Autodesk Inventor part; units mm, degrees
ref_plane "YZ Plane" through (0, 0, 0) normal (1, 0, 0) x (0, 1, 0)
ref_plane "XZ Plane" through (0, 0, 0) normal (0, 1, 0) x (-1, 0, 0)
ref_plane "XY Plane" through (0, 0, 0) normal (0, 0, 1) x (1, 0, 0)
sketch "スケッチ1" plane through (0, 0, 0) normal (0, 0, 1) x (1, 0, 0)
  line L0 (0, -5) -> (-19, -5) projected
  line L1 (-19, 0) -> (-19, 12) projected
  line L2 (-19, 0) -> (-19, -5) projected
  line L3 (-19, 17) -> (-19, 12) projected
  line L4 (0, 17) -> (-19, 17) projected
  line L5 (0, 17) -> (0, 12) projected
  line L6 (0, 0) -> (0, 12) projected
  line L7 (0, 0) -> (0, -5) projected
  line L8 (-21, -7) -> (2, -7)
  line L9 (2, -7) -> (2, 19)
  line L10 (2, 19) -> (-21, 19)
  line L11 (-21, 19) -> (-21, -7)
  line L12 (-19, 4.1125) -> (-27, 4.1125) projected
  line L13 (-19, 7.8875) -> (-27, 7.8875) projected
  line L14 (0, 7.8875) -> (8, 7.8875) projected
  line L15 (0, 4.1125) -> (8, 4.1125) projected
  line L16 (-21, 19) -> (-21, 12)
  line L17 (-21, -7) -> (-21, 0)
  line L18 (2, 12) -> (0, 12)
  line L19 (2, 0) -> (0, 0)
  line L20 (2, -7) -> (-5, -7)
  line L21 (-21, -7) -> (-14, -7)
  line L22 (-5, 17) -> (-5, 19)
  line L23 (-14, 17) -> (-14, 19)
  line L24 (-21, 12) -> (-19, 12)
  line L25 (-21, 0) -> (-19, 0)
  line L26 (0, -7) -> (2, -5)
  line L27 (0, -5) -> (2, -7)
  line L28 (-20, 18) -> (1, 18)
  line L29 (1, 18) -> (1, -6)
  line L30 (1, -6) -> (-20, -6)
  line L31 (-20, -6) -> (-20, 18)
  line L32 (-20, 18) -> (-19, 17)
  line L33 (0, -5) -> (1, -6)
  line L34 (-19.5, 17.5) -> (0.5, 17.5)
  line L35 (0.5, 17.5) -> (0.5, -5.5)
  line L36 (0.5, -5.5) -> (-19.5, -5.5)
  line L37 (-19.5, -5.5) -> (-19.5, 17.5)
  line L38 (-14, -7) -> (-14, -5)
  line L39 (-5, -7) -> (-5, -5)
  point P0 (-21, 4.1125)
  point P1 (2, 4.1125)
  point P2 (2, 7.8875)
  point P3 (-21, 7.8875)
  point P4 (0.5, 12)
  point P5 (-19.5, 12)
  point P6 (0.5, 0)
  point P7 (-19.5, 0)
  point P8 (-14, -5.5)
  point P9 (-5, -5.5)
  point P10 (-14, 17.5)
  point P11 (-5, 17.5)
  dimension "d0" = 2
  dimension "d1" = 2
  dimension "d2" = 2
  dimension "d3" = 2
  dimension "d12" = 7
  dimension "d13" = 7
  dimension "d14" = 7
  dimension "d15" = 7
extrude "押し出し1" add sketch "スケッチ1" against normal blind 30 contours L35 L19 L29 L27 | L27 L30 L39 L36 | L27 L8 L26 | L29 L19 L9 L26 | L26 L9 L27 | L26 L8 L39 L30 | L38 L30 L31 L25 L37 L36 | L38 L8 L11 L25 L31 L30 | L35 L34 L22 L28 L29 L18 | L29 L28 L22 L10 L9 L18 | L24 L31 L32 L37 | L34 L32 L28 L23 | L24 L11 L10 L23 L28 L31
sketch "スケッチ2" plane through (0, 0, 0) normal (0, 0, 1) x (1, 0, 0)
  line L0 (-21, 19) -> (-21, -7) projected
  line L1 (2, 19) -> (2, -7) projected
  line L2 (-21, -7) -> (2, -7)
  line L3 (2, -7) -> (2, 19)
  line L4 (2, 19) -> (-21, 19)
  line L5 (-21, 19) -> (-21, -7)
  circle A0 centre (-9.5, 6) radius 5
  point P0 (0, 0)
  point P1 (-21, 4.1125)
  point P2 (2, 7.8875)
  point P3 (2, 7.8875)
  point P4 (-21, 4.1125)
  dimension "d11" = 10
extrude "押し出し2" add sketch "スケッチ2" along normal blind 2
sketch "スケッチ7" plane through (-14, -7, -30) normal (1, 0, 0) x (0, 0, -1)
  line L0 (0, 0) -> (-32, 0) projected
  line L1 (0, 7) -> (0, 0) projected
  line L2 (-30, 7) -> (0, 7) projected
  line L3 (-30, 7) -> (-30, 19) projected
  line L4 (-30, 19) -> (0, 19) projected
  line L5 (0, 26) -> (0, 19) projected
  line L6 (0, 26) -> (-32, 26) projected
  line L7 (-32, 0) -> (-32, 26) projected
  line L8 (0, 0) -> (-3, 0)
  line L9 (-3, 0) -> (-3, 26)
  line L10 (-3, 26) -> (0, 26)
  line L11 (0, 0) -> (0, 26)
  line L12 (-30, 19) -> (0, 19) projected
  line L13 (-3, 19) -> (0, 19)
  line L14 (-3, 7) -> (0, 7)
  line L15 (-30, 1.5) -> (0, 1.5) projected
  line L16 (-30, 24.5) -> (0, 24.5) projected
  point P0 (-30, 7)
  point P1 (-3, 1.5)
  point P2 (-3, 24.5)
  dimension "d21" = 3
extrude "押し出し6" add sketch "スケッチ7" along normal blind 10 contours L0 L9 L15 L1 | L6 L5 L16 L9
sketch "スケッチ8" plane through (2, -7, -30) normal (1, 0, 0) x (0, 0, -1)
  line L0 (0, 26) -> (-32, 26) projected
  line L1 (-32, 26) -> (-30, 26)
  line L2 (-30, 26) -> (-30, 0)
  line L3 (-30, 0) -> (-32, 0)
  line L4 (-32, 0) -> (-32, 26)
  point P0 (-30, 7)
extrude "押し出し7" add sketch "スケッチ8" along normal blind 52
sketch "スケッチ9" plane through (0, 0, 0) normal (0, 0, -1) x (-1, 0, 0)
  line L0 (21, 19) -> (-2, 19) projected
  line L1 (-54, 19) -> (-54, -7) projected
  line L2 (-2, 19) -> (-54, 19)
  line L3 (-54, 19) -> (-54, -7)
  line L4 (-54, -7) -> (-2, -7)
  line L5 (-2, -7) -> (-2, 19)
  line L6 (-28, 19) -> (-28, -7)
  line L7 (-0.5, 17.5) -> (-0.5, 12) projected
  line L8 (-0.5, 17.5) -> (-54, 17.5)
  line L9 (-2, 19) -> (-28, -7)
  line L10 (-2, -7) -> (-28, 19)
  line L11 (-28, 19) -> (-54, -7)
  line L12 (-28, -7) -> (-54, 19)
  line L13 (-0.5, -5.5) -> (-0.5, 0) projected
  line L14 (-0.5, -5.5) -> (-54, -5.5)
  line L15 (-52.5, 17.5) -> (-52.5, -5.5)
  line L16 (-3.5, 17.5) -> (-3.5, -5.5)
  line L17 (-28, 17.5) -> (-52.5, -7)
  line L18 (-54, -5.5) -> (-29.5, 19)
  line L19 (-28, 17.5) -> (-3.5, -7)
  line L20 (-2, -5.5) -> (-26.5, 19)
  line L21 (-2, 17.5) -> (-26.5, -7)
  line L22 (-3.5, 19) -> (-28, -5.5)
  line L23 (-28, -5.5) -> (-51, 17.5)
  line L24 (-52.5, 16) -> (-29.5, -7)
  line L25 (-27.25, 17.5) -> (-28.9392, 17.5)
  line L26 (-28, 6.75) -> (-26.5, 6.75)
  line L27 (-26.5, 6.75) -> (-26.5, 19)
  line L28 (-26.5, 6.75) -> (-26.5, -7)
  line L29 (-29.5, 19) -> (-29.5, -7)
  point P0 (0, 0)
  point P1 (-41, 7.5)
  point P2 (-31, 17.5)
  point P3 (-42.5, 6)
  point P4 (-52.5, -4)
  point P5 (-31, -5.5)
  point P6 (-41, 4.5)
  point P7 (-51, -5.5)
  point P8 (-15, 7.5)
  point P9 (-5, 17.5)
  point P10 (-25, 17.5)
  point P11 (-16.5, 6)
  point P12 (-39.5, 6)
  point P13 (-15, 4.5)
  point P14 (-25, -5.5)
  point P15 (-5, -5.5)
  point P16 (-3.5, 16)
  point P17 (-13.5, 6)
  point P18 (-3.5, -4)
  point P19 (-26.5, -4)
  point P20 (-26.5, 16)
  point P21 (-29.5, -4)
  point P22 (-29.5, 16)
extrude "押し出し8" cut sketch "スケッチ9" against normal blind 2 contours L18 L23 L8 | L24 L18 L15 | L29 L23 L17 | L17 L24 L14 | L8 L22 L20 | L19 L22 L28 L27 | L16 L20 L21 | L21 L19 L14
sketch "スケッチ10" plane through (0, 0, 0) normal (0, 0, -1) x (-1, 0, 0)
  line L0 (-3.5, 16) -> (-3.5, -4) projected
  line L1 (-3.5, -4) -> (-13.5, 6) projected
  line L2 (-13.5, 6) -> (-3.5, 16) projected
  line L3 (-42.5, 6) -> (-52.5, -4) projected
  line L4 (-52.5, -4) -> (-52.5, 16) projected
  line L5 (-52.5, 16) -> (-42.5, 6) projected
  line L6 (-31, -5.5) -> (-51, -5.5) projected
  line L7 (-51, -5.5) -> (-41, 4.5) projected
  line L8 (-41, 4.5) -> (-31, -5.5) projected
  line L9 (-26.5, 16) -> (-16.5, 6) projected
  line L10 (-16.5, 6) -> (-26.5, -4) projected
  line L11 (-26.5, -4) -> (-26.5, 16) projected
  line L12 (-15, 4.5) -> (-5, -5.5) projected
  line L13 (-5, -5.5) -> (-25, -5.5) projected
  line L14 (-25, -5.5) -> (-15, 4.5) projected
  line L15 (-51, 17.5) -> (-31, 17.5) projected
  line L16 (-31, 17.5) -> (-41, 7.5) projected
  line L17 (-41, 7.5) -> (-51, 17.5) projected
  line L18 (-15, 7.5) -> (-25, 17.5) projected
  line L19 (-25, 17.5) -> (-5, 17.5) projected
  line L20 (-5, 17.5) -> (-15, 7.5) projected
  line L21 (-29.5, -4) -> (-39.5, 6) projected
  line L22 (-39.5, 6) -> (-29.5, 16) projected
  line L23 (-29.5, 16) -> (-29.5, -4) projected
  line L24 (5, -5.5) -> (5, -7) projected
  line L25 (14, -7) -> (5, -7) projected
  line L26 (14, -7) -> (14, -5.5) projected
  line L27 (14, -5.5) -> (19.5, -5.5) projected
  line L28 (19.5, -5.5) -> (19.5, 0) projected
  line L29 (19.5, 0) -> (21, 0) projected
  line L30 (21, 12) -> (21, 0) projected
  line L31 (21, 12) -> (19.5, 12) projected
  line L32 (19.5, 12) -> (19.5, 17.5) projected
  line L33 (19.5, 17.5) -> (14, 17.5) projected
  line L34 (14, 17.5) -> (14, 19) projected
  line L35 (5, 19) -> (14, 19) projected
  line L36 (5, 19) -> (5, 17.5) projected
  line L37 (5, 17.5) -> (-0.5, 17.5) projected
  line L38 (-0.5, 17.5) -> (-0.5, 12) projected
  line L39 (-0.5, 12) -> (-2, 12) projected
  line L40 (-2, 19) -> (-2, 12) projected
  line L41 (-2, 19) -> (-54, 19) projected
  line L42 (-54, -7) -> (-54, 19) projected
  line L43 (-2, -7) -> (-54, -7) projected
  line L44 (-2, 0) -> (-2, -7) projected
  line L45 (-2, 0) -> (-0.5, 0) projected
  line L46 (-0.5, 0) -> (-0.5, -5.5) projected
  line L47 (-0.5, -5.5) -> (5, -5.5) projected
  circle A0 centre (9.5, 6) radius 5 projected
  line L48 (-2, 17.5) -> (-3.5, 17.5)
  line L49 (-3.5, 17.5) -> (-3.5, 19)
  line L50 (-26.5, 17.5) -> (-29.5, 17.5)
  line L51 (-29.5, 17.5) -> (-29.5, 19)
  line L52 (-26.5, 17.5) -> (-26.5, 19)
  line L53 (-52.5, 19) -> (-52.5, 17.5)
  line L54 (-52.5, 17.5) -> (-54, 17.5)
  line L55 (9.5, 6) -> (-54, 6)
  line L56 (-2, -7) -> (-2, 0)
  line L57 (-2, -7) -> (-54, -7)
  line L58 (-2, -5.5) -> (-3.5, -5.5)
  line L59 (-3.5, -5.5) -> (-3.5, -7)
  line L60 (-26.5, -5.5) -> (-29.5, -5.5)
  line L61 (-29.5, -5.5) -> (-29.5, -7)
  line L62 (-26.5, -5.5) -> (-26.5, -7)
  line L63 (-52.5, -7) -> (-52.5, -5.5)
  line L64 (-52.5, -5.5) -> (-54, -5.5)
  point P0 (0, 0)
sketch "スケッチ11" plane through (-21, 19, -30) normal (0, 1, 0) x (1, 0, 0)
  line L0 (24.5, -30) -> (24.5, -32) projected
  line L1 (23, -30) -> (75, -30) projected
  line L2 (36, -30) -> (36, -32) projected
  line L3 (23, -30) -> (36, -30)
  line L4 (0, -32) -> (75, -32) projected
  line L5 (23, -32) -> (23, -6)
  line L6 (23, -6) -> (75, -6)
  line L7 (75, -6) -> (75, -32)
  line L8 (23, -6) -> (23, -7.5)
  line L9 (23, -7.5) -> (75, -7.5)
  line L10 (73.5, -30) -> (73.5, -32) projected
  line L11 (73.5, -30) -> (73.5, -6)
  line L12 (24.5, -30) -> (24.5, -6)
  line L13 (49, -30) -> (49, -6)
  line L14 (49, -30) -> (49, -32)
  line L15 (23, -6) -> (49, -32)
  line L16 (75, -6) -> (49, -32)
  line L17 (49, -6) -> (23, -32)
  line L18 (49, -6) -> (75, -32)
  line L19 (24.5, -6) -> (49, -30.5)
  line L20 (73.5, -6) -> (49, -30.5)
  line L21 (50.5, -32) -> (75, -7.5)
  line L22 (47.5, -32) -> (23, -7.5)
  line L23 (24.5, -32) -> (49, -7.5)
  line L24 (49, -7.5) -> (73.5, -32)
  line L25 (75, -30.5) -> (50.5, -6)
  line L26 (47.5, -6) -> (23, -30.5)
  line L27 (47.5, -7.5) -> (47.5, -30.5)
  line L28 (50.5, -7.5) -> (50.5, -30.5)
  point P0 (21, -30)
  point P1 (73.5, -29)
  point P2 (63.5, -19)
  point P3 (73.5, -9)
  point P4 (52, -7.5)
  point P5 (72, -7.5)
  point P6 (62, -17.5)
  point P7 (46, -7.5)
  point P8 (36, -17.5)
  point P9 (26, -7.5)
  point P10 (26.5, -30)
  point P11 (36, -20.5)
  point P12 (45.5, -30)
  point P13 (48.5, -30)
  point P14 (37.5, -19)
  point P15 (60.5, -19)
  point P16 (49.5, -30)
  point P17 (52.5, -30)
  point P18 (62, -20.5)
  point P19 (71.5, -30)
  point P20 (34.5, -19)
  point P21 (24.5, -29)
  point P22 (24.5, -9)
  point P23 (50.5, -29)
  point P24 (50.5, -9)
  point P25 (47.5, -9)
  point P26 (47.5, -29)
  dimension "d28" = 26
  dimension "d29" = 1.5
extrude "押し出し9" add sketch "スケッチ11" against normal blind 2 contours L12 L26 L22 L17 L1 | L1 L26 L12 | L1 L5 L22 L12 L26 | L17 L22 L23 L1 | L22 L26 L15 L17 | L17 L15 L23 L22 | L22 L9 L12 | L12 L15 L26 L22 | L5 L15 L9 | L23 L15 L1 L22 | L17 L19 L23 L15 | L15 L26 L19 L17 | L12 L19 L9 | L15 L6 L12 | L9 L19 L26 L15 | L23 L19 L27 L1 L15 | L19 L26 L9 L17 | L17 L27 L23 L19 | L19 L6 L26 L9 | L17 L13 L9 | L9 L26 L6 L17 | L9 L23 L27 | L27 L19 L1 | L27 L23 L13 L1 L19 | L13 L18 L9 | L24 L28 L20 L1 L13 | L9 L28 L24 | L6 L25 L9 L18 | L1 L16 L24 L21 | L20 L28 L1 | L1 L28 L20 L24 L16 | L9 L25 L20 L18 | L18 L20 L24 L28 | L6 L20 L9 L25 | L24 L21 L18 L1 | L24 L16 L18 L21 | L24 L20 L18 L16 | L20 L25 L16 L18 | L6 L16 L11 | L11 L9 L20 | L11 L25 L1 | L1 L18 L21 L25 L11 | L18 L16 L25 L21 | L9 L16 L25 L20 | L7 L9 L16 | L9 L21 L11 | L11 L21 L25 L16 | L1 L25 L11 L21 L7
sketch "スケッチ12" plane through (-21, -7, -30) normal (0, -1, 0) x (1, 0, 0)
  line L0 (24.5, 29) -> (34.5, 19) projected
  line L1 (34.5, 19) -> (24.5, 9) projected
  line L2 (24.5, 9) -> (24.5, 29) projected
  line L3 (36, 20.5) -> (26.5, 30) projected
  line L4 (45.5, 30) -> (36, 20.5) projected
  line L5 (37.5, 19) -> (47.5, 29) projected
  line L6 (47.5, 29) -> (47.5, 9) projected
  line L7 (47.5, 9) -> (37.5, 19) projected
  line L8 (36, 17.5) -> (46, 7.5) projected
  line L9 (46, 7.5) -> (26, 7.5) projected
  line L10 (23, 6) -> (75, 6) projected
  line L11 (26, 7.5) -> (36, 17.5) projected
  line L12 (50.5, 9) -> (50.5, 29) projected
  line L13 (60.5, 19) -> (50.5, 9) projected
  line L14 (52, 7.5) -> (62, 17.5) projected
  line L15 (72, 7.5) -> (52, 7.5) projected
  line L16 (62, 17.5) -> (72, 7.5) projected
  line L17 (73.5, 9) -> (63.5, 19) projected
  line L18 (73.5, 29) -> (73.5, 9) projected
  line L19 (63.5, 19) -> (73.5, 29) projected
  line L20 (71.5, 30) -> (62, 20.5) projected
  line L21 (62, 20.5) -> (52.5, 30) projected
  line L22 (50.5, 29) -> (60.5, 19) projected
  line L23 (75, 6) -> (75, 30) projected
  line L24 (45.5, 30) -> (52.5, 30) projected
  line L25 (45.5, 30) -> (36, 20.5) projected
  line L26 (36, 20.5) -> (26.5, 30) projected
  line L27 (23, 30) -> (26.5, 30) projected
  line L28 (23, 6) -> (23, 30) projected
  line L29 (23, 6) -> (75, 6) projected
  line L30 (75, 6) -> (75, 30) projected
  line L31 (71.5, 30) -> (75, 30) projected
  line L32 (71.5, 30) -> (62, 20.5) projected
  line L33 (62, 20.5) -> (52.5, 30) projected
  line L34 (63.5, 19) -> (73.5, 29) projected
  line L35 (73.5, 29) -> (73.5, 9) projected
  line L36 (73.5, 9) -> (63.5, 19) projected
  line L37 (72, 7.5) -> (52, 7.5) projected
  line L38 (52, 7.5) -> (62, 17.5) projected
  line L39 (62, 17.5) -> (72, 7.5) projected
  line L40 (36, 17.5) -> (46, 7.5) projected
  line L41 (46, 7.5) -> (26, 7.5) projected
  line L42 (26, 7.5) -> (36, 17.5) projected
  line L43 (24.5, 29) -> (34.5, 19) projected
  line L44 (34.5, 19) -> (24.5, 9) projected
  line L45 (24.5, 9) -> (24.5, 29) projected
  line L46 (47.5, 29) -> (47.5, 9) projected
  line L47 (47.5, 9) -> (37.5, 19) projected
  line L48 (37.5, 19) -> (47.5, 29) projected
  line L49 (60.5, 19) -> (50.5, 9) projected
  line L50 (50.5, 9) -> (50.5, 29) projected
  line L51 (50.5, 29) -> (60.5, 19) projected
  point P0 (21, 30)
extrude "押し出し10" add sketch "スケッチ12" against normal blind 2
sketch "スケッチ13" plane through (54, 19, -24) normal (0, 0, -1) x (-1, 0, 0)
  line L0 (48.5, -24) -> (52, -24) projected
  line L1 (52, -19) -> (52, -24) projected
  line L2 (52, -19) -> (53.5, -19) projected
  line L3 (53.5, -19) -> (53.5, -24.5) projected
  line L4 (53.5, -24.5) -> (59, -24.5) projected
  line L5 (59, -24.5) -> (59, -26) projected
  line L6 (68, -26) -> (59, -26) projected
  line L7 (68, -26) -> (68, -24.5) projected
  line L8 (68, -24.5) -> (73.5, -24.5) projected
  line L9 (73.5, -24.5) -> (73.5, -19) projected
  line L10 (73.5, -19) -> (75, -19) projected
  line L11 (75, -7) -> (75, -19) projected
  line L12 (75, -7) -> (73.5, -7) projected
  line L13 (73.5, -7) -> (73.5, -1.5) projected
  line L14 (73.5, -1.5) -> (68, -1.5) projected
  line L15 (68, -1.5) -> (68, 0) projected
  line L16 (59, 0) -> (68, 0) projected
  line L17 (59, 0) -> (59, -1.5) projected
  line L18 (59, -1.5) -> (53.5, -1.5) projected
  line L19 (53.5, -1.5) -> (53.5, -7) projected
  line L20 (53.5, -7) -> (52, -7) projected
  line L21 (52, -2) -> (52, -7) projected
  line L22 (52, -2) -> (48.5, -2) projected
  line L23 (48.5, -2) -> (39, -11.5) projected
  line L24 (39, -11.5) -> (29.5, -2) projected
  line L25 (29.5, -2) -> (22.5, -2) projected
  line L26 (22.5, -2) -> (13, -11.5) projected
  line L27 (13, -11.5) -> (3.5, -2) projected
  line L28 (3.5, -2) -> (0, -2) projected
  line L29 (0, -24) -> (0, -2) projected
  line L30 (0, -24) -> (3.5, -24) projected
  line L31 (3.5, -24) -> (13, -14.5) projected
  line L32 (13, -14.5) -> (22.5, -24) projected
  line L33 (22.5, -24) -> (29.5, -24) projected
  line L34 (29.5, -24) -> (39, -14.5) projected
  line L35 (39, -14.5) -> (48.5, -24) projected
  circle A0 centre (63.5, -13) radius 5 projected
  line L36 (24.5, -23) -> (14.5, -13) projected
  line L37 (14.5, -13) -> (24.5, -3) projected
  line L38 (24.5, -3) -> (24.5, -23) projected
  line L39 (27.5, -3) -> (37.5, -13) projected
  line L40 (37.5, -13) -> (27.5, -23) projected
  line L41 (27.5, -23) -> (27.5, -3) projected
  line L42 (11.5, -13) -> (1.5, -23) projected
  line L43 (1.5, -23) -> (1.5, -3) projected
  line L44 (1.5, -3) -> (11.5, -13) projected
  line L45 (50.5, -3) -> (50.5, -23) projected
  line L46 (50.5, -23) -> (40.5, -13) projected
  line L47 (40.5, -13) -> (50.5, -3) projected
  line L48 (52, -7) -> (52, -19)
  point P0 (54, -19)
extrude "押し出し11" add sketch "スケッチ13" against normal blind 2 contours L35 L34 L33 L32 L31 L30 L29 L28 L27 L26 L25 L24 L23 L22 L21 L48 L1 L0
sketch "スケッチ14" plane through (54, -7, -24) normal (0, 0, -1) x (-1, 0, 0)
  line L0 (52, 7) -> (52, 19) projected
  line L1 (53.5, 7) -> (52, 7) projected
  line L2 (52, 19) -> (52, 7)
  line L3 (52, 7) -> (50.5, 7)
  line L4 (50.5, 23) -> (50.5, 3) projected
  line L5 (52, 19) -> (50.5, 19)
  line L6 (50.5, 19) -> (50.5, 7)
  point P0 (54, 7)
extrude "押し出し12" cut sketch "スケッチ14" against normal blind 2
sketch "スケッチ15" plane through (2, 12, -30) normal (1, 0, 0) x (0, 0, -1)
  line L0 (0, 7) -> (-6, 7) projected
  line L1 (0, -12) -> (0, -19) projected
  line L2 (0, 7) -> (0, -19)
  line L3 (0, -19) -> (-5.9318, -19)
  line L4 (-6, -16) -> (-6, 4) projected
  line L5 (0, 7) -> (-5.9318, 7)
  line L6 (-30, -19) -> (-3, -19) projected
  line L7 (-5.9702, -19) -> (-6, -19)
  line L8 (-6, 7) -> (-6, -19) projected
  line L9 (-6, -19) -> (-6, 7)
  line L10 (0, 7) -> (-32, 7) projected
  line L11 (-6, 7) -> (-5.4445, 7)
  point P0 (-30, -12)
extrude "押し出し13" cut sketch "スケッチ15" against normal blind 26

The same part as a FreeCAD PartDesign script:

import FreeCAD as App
import Part
import Sketcher

V = App.Vector


def add_polygon(sketch, points):
    """Adds a closed chain of lines whose ends are joined by coincident constraints."""
    first, n = sketch.GeometryCount, len(points)
    for a, b in zip(points, points[1:] + points[:1]):
        sketch.addGeometry(Part.LineSegment(App.Vector(*a, 0), App.Vector(*b, 0)), False)
    for i in range(n):
        sketch.addConstraint(Sketcher.Constraint("Coincident", first + i, 2, first + (i + 1) % n, 1))

doc = App.newDocument("Part")
params = doc.addObject("Spreadsheet::Sheet", "Params")
for row, (alias, value) in enumerate([
    ("sketch1_width", "7 mm"),
    ("sketch1_width2", "5.5 mm"),
    ("pad1_length", "30 mm"),
    ("sketch2_diameter", "10 mm"),
    ("sketch2_width", "23 mm"),
    ("sketch2_height", "26 mm"),
    ("pad2_length", "2 mm"),
    ("sketch3_height", "3 mm"),
    ("sketch3_width", "1.5 mm"),
    ("pad3_length", "10 mm"),
    ("sketch4_width", "26 mm"),
    ("sketch4_height", "2 mm"),
    ("pad4_length", "52 mm"),
    ("sketch5_width", "20 mm"),
    ("pocket1_length", "2 mm"),
    ("sketch6_width", "7 mm"),
    ("sketch6_width2", "52 mm"),
    ("pad5_length", "2 mm"),
    ("sketch7_width", "52 mm"),
    ("sketch7_width2", "7 mm"),
    ("sketch7_width3", "20 mm"),
    ("sketch7_height", "24 mm"),
    ("sketch7_width4", "3.5 mm"),
    ("pad6_length", "2 mm"),
    ("sketch8_width", "7 mm"),
    ("sketch8_height", "22 mm"),
    ("sketch8_height2", "20 mm"),
    ("sketch8_width2", "3.5 mm"),
    ("pad7_length", "2 mm"),
    ("sketch9_height", "12 mm"),
    ("sketch9_width", "1.5 mm"),
    ("pocket2_length", "2 mm"),
    ("sketch10_width", "26 mm"),
    ("sketch10_height", "6 mm"),
    ("pocket3_length", "26 mm"),
], start=1):
    params.set(f"A{row}", alias)
    params.set(f"B{row}", "=" + value)
    params.setAlias(f"B{row}", alias)

body = doc.addObject("PartDesign::Body", "Body")
body.AllowCompound = True

# Sketch on XY plane
sketch1 = doc.addObject("Sketcher::SketchObject", "Sketch")
body.addObject(sketch1)
sketch1.AttachmentSupport = (doc.XY_Plane, [""])
sketch1.MapMode = "FlatFace"
add_polygon(sketch1, [(0.5, 0), (0.5, -5.5), (-5, -5.5), (-5, -7), (2, -7), (2, 0)])  # lines 0-5
add_polygon(sketch1, [(-14, -5.5), (-19.5, -5.5), (-19.5, 0), (-21, 0), (-21, -7), (-14, -7)])  # lines 6-11
add_polygon(sketch1, [(0.5, 17.5), (0.5, 12), (2, 12), (2, 19), (-5, 19), (-5, 17.5)])  # lines 12-17
add_polygon(sketch1, [(-19.5, 12), (-19.5, 17.5), (-14, 17.5), (-14, 19), (-21, 19), (-21, 12)])  # lines 18-23
sketch1.addConstraint(Sketcher.Constraint("Vertical", 0))
sketch1.addConstraint(Sketcher.Constraint("Horizontal", 1))
sketch1.addConstraint(Sketcher.Constraint("Vertical", 2))
sketch1.addConstraint(Sketcher.Constraint("Horizontal", 3))
sketch1.addConstraint(Sketcher.Constraint("Vertical", 4))
sketch1.addConstraint(Sketcher.Constraint("Horizontal", 5))
sketch1.addConstraint(Sketcher.Constraint("Horizontal", 6))
sketch1.addConstraint(Sketcher.Constraint("Vertical", 7))
sketch1.addConstraint(Sketcher.Constraint("Horizontal", 8))
sketch1.addConstraint(Sketcher.Constraint("Vertical", 9))
sketch1.addConstraint(Sketcher.Constraint("Horizontal", 10))
sketch1.addConstraint(Sketcher.Constraint("Vertical", 11))
sketch1.addConstraint(Sketcher.Constraint("Vertical", 12))
sketch1.addConstraint(Sketcher.Constraint("Horizontal", 13))
sketch1.addConstraint(Sketcher.Constraint("Vertical", 14))
sketch1.addConstraint(Sketcher.Constraint("Horizontal", 15))
sketch1.addConstraint(Sketcher.Constraint("Vertical", 16))
sketch1.addConstraint(Sketcher.Constraint("Horizontal", 17))
sketch1.addConstraint(Sketcher.Constraint("Vertical", 18))
sketch1.addConstraint(Sketcher.Constraint("Horizontal", 19))
sketch1.addConstraint(Sketcher.Constraint("Vertical", 20))
sketch1.addConstraint(Sketcher.Constraint("Horizontal", 21))
sketch1.addConstraint(Sketcher.Constraint("Vertical", 22))
sketch1.addConstraint(Sketcher.Constraint("Horizontal", 23))
sketch1.addConstraint(Sketcher.Constraint("PointOnObject", 4, 2, -1))
sketch1.addConstraint(Sketcher.Constraint("PointOnObject", 7, 2, -1))
sketch1.addConstraint(Sketcher.Constraint("Horizontal", 1, 2, 6, 2))
sketch1.addConstraint(Sketcher.Constraint("Horizontal", 3, 2, 9, 2))
sketch1.addConstraint(Sketcher.Constraint("Horizontal", 17, 2, 18, 2))
sketch1.addConstraint(Sketcher.Constraint("Horizontal", 15, 2, 20, 2))
sketch1.addConstraint(Sketcher.Constraint("Horizontal", 13, 2, 22, 2))
sketch1.addConstraint(Sketcher.Constraint("Vertical", 5, 2, 12, 2))
sketch1.addConstraint(Sketcher.Constraint("Vertical", 4, 2, 13, 2))
sketch1.addConstraint(Sketcher.Constraint("Vertical", 2, 2, 15, 2))
sketch1.addConstraint(Sketcher.Constraint("Vertical", 7, 2, 18, 2))
sketch1.addConstraint(Sketcher.Constraint("Vertical", 11, 2, 19, 2))
sketch1.addConstraint(Sketcher.Constraint("Vertical", 9, 2, 21, 2))
sketch1.addConstraint(Sketcher.Constraint("Equal", 1, 6))
sketch1.addConstraint(Sketcher.Constraint("Equal", 5, 8))
sketch1.addConstraint(Sketcher.Constraint("Equal", 19, 0))
sketch1.addConstraint(Sketcher.Constraint("Equal", 23, 2))
sketch1.addConstraint(Sketcher.Constraint("Equal", 7, 12))
sketch1.addConstraint(Sketcher.Constraint("Equal", 9, 14))
sketch1.addConstraint(Sketcher.Constraint("DistanceX", 3, 1, 3, 2, 7.0))
sketch1.addConstraint(Sketcher.Constraint("DistanceX", -1, 1, 3, 2, 2.0))
sketch1.addConstraint(Sketcher.Constraint("DistanceX", 1, 2, 1, 1, 5.5))
sketch1.addConstraint(Sketcher.Constraint("DistanceX", 8, 2, -1, 1, 21.0))
sketch1.addConstraint(Sketcher.Constraint("DistanceY", -1, 1, 12, 2, 12.0))
sketch1.setExpression("Constraints[67]", "Params.sketch1_width")
sketch1.setExpression("Constraints[69]", "Params.sketch1_width2")
pad1 = doc.addObject("PartDesign::Pad", "Pad")
body.addObject(pad1)
pad1.Profile = sketch1
pad1.setExpression("Length", "Params.pad1_length")
pad1.Reversed = True

# Sketch on XY plane
sketch2 = doc.addObject("Sketcher::SketchObject", "Sketch001")
body.addObject(sketch2)
sketch2.AttachmentSupport = (doc.XY_Plane, [""])
sketch2.MapMode = "FlatFace"
add_polygon(sketch2, [(2, 19), (-21, 19), (-21, -7), (2, -7)])  # lines 0-3
sketch2.addGeometry(Part.Circle(V(-10, 6, 0), V(0, 0, 1), 5), False)  # 4
sketch2.addConstraint(Sketcher.Constraint("Horizontal", 0))
sketch2.addConstraint(Sketcher.Constraint("Vertical", 1))
sketch2.addConstraint(Sketcher.Constraint("Horizontal", 2))
sketch2.addConstraint(Sketcher.Constraint("Vertical", 3))
sketch2.addConstraint(Sketcher.Constraint("Diameter", 4, 10.0))
sketch2.addConstraint(Sketcher.Constraint("DistanceX", 0, 2, 0, 1, 23.0))
sketch2.addConstraint(Sketcher.Constraint("DistanceY", 1, 2, 1, 1, 26.0))
sketch2.addConstraint(Sketcher.Constraint("DistanceY", -1, 1, 4, 3, 6.0))
sketch2.addConstraint(Sketcher.Constraint("DistanceX", 0, 2, -1, 1, 21.0))
sketch2.addConstraint(Sketcher.Constraint("DistanceY", -1, 1, 0, 2, 19.0))
sketch2.addConstraint(Sketcher.Constraint("DistanceX", 4, 3, -1, 1, 9.5))
sketch2.setExpression("Constraints[8]", "Params.sketch2_diameter")
sketch2.setExpression("Constraints[9]", "Params.sketch2_width")
sketch2.setExpression("Constraints[10]", "Params.sketch2_height")
pad2 = doc.addObject("PartDesign::Pad", "Pad001")
body.addObject(pad2)
pad2.Profile = sketch2
pad2.setExpression("Length", "Params.pad2_length")

# Sketch on YZ plane
sketch3 = doc.addObject("Sketcher::SketchObject", "Sketch002")
body.addObject(sketch3)
sketch3.AttachmentSupport = (doc.YZ_Plane, [""])
sketch3.MapMode = "FlatFace"
sketch3.AttachmentOffset = App.Placement(V(0, 0, -14), App.Rotation())
add_polygon(sketch3, [(-7, -27), (-7, -30), (-5.5, -30), (-5.5, -27)])  # lines 0-3
add_polygon(sketch3, [(19, -30), (19, -27), (17.5, -27), (17.5, -30)])  # lines 4-7
sketch3.addConstraint(Sketcher.Constraint("Vertical", 0))
sketch3.addConstraint(Sketcher.Constraint("Horizontal", 1))
sketch3.addConstraint(Sketcher.Constraint("Vertical", 2))
sketch3.addConstraint(Sketcher.Constraint("Horizontal", 3))
sketch3.addConstraint(Sketcher.Constraint("Vertical", 4))
sketch3.addConstraint(Sketcher.Constraint("Horizontal", 5))
sketch3.addConstraint(Sketcher.Constraint("Vertical", 6))
sketch3.addConstraint(Sketcher.Constraint("Horizontal", 7))
sketch3.addConstraint(Sketcher.Constraint("Horizontal", 3, 2, 4, 2))
sketch3.addConstraint(Sketcher.Constraint("Horizontal", 1, 2, 6, 2))
sketch3.addConstraint(Sketcher.Constraint("Equal", 3, 5))
sketch3.addConstraint(Sketcher.Constraint("DistanceY", 0, 2, 0, 1, 3.0))
sketch3.addConstraint(Sketcher.Constraint("DistanceX", 1, 1, 1, 2, 1.5))
sketch3.addConstraint(Sketcher.Constraint("DistanceX", 0, 2, -1, 1, 7.0))
sketch3.addConstraint(Sketcher.Constraint("DistanceY", 0, 2, -1, 1, 30.0))
sketch3.addConstraint(Sketcher.Constraint("DistanceX", -1, 1, 4, 2, 19.0))
sketch3.setExpression("Constraints[19]", "Params.sketch3_height")
sketch3.setExpression("Constraints[20]", "Params.sketch3_width")
pad3 = doc.addObject("PartDesign::Pad", "Pad002")
body.addObject(pad3)
pad3.Profile = sketch3
pad3.setExpression("Length", "Params.pad3_length")

# Sketch on YZ plane
sketch4 = doc.addObject("Sketcher::SketchObject", "Sketch003")
body.addObject(sketch4)
sketch4.AttachmentSupport = (doc.YZ_Plane, [""])
sketch4.MapMode = "FlatFace"
sketch4.AttachmentOffset = App.Placement(V(0, 0, 2), App.Rotation())
add_polygon(sketch4, [(-7, 0), (19, 0), (19, 2), (-7, 2)])  # lines 0-3
sketch4.addConstraint(Sketcher.Constraint("Horizontal", 0))
sketch4.addConstraint(Sketcher.Constraint("Vertical", 1))
sketch4.addConstraint(Sketcher.Constraint("Horizontal", 2))
sketch4.addConstraint(Sketcher.Constraint("Vertical", 3))
sketch4.addConstraint(Sketcher.Constraint("PointOnObject", 0, 2, -1))
sketch4.addConstraint(Sketcher.Constraint("DistanceX", 0, 1, 0, 2, 26.0))
sketch4.addConstraint(Sketcher.Constraint("DistanceY", 1, 1, 1, 2, 2.0))
sketch4.addConstraint(Sketcher.Constraint("DistanceX", -1, 1, 0, 2, 19.0))
sketch4.setExpression("Constraints[9]", "Params.sketch4_width")
sketch4.setExpression("Constraints[10]", "Params.sketch4_height")
pad4 = doc.addObject("PartDesign::Pad", "Pad003")
body.addObject(pad4)
pad4.Profile = sketch4
pad4.setExpression("Length", "Params.pad4_length")

# Sketch on XY plane
sketch5 = doc.addObject("Sketcher::SketchObject", "Sketch004")
body.addObject(sketch5)
sketch5.AttachmentSupport = (doc.XY_Plane, [""])
sketch5.MapMode = "FlatFace"
add_polygon(sketch5, [(41, 8), (31, 18), (51, 18)])  # lines 0-2
add_polygon(sketch5, [(42, 6), (52, 16), (52, -4)])  # lines 3-5
add_polygon(sketch5, [(30, -4), (30, 16), (40, 6)])  # lines 6-8
add_polygon(sketch5, [(41, 4), (51, -6), (31, -6)])  # lines 9-11
add_polygon(sketch5, [(5, 18), (25, 18), (15, 8)])  # lines 12-14
add_polygon(sketch5, [(16, 6), (26, 16), (26, -4)])  # lines 15-17
add_polygon(sketch5, [(4, -4), (4, 16), (14, 6)])  # lines 18-20
add_polygon(sketch5, [(15, 4), (25, -6), (5, -6)])  # lines 21-23
sketch5.addConstraint(Sketcher.Constraint("Horizontal", 1))
sketch5.addConstraint(Sketcher.Constraint("Vertical", 4))
sketch5.addConstraint(Sketcher.Constraint("Vertical", 6))
sketch5.addConstraint(Sketcher.Constraint("Horizontal", 10))
sketch5.addConstraint(Sketcher.Constraint("Horizontal", 12))
sketch5.addConstraint(Sketcher.Constraint("Vertical", 16))
sketch5.addConstraint(Sketcher.Constraint("Vertical", 18))
sketch5.addConstraint(Sketcher.Constraint("Horizontal", 22))
sketch5.addConstraint(Sketcher.Constraint("Perpendicular", 0, 2))
sketch5.addConstraint(Sketcher.Constraint("Parallel", 2, 3))
sketch5.addConstraint(Sketcher.Constraint("Perpendicular", 3, 5))
sketch5.addConstraint(Sketcher.Constraint("Parallel", 5, 7))
sketch5.addConstraint(Sketcher.Constraint("Perpendicular", 7, 8))
sketch5.addConstraint(Sketcher.Constraint("Perpendicular", 8, 9))
sketch5.addConstraint(Sketcher.Constraint("Perpendicular", 9, 11))
sketch5.addConstraint(Sketcher.Constraint("Parallel", 11, 13))
sketch5.addConstraint(Sketcher.Constraint("Perpendicular", 13, 14))
sketch5.addConstraint(Sketcher.Constraint("Perpendicular", 14, 15))
sketch5.addConstraint(Sketcher.Constraint("Perpendicular", 15, 17))
sketch5.addConstraint(Sketcher.Constraint("Parallel", 17, 19))
sketch5.addConstraint(Sketcher.Constraint("Perpendicular", 19, 20))
sketch5.addConstraint(Sketcher.Constraint("Perpendicular", 20, 21))
sketch5.addConstraint(Sketcher.Constraint("Perpendicular", 21, 23))
sketch5.addConstraint(Sketcher.Constraint("Horizontal", 3, 2, 6, 2))
sketch5.addConstraint(Sketcher.Constraint("Horizontal", 5, 2, 7, 2))
sketch5.addConstraint(Sketcher.Constraint("Horizontal", 4, 2, 8, 2))
sketch5.addConstraint(Sketcher.Constraint("Horizontal", 1, 2, 12, 2))
sketch5.addConstraint(Sketcher.Constraint("Horizontal", 2, 2, 13, 2))
sketch5.addConstraint(Sketcher.Constraint("Horizontal", 6, 2, 15, 2))
sketch5.addConstraint(Sketcher.Constraint("Horizontal", 8, 2, 16, 2))
sketch5.addConstraint(Sketcher.Constraint("Horizontal", 15, 2, 18, 2))
sketch5.addConstraint(Sketcher.Constraint("Horizontal", 17, 2, 19, 2))
sketch5.addConstraint(Sketcher.Constraint("Horizontal", 10, 2, 21, 2))
sketch5.addConstraint(Sketcher.Constraint("Horizontal", 11, 2, 23, 2))
sketch5.addConstraint(Sketcher.Constraint("Vertical", 1, 2, 9, 2))
sketch5.addConstraint(Sketcher.Constraint("Vertical", 0, 2, 10, 2))
sketch5.addConstraint(Sketcher.Constraint("Vertical", 12, 2, 21, 2))
sketch5.addConstraint(Sketcher.Constraint("Equal", 22, 4))
sketch5.addConstraint(Sketcher.Constraint("DistanceX", 1, 1, 1, 2, 20.0))
sketch5.addConstraint(Sketcher.Constraint("DistanceX", -1, 1, 0, 2, 31.0))
sketch5.addConstraint(Sketcher.Constraint("DistanceY", -1, 1, 3, 2, 16.0))
sketch5.addConstraint(Sketcher.Constraint("DistanceX", -1, 1, 12, 2, 25.0))
sketch5.addConstraint(Sketcher.Constraint("DistanceX", 6, 2, 5, 2, 13.0))
sketch5.addConstraint(Sketcher.Constraint("DistanceY", 9, 2, 2, 2, 13.0))
sketch5.addConstraint(Sketcher.Constraint("DistanceX", 15, 2, 6, 2, 3.0))
sketch5.addConstraint(Sketcher.Constraint("DistanceX", 18, 2, 17, 2, 13.0))
sketch5.addConstraint(Sketcher.Constraint("DistanceY", -1, 1, 0, 2, 17.5))
sketch5.addConstraint(Sketcher.Constraint("DistanceX", -1, 1, 3, 2, 52.5))
sketch5.setExpression("Constraints[62]", "Params.sketch5_width")
pocket1 = doc.addObject("PartDesign::Pocket", "Pocket")
body.addObject(pocket1)
pocket1.Profile = sketch5
pocket1.setExpression("Length", "Params.pocket1_length")
pocket1.Reversed = True

# Sketch on XZ plane
sketch6 = doc.addObject("Sketcher::SketchObject", "Sketch005")
body.addObject(sketch6)
sketch6.AttachmentSupport = (doc.XZ_Plane, [""])
sketch6.MapMode = "FlatFace"
sketch6.AttachmentOffset = App.Placement(V(0, 0, -19), App.Rotation())
add_polygon(sketch6, [(5.5, 0), (15, -9.5), (24.5, 0), (31.5, 0), (41, -9.5), (50.5, 0), (54, 0), (54, -24), (2, -24), (2, 0)])  # lines 0-9
add_polygon(sketch6, [(13.5, -11), (3.5, -1), (3.5, -21)])  # lines 10-12
add_polygon(sketch6, [(15, -12.5), (5, -22.5), (25, -22.5)])  # lines 13-15
add_polygon(sketch6, [(26.5, -1), (16.5, -11), (26.5, -21)])  # lines 16-18
add_polygon(sketch6, [(29.5, -1), (29.5, -21), (39.5, -11)])  # lines 19-21
add_polygon(sketch6, [(31, -22.5), (51, -22.5), (41, -12.5)])  # lines 22-24
add_polygon(sketch6, [(42.5, -11), (52.5, -21), (52.5, -1)])  # lines 25-27
sketch6.addConstraint(Sketcher.Constraint("Horizontal", 2))
sketch6.addConstraint(Sketcher.Constraint("Horizontal", 5))
sketch6.addConstraint(Sketcher.Constraint("Vertical", 6))
sketch6.addConstraint(Sketcher.Constraint("Horizontal", 7))
sketch6.addConstraint(Sketcher.Constraint("Vertical", 8))
sketch6.addConstraint(Sketcher.Constraint("Horizontal", 9))
sketch6.addConstraint(Sketcher.Constraint("Vertical", 11))
sketch6.addConstraint(Sketcher.Constraint("Horizontal", 14))
sketch6.addConstraint(Sketcher.Constraint("Vertical", 18))
sketch6.addConstraint(Sketcher.Constraint("Vertical", 19))
sketch6.addConstraint(Sketcher.Constraint("Horizontal", 22))
sketch6.addConstraint(Sketcher.Constraint("Vertical", 26))
sketch6.addConstraint(Sketcher.Constraint("PointOnObject", 1, 2, -1))
sketch6.addConstraint(Sketcher.Constraint("PointOnObject", 4, 2, -1))
sketch6.addConstraint(Sketcher.Constraint("PointOnObject", 8, 2, -1))
sketch6.addConstraint(Sketcher.Constraint("Perpendicular", 0, 1))
sketch6.addConstraint(Sketcher.Constraint("Perpendicular", 1, 3))
sketch6.addConstraint(Sketcher.Constraint("Perpendicular", 3, 4))
sketch6.addConstraint(Sketcher.Constraint("Perpendicular", 4, 10))
sketch6.addConstraint(Sketcher.Constraint("Perpendicular", 10, 12))
sketch6.addConstraint(Sketcher.Constraint("Parallel", 12, 13))
sketch6.addConstraint(Sketcher.Constraint("Perpendicular", 13, 15))
sketch6.addConstraint(Sketcher.Constraint("Perpendicular", 15, 16))
sketch6.addConstraint(Sketcher.Constraint("Perpendicular", 16, 17))
sketch6.addConstraint(Sketcher.Constraint("Perpendicular", 17, 20))
sketch6.addConstraint(Sketcher.Constraint("Perpendicular", 20, 21))
sketch6.addConstraint(Sketcher.Constraint("Parallel", 21, 23))
sketch6.addConstraint(Sketcher.Constraint("Perpendicular", 23, 24))
sketch6.addConstraint(Sketcher.Constraint("Perpendicular", 24, 25))
sketch6.addConstraint(Sketcher.Constraint("Perpendicular", 25, 27))
sketch6.addConstraint(Sketcher.Constraint("Horizontal", 0, 2, 3, 2))
sketch6.addConstraint(Sketcher.Constraint("Horizontal", 12, 2, 16, 2))
sketch6.addConstraint(Sketcher.Constraint("Horizontal", 11, 2, 17, 2))
sketch6.addConstraint(Sketcher.Constraint("Horizontal", 10, 2, 18, 2))
sketch6.addConstraint(Sketcher.Constraint("Horizontal", 17, 2, 19, 2))
sketch6.addConstraint(Sketcher.Constraint("Horizontal", 16, 2, 20, 2))
sketch6.addConstraint(Sketcher.Constraint("Horizontal", 14, 2, 22, 2))
sketch6.addConstraint(Sketcher.Constraint("Horizontal", 15, 2, 23, 2))
sketch6.addConstraint(Sketcher.Constraint("Horizontal", 19, 2, 25, 2))
sketch6.addConstraint(Sketcher.Constraint("Horizontal", 21, 2, 26, 2))
sketch6.addConstraint(Sketcher.Constraint("Vertical", 0, 2, 15, 2))
sketch6.addConstraint(Sketcher.Constraint("Vertical", 3, 2, 23, 2))
sketch6.addConstraint(Sketcher.Constraint("Equal", 5, 9))
sketch6.addConstraint(Sketcher.Constraint("Equal", 22, 11))
sketch6.addConstraint(Sketcher.Constraint("DistanceX", 0, 2, 3, 2, 26.0))
sketch6.addConstraint(Sketcher.Constraint("DistanceX", 8, 2, 10, 2, 1.5))
sketch6.addConstraint(Sketcher.Constraint("DistanceX", 12, 2, 0, 2, 1.5))
sketch6.addConstraint(Sketcher.Constraint("DistanceY", 12, 2, 0, 2, 1.5))
sketch6.addConstraint(Sketcher.Constraint("DistanceY", 13, 2, 11, 2, 1.5))
sketch6.addConstraint(Sketcher.Constraint("DistanceY", 7, 2, 13, 2, 1.5))
sketch6.addConstraint(Sketcher.Constraint("DistanceX", 0, 2, 16, 2, 1.5))
sketch6.addConstraint(Sketcher.Constraint("DistanceX", 20, 2, 3, 2, 1.5))
sketch6.addConstraint(Sketcher.Constraint("DistanceX", 22, 2, 25, 2, 1.5))
sketch6.addConstraint(Sketcher.Constraint("DistanceX", 2, 1, 2, 2, 7.0))
sketch6.addConstraint(Sketcher.Constraint("DistanceX", 7, 2, 7, 1, 52.0))
sketch6.addConstraint(Sketcher.Constraint("DistanceX", -1, 1, 0, 2, 15.0))
sketch6.setExpression("Constraints[81]", "Params.sketch6_width")
sketch6.setExpression("Constraints[82]", "Params.sketch6_width2")
pad5 = doc.addObject("PartDesign::Pad", "Pad004")
body.addObject(pad5)
pad5.Profile = sketch6
pad5.setExpression("Length", "Params.pad5_length")

# Sketch on XZ plane
sketch7 = doc.addObject("Sketcher::SketchObject", "Sketch006")
body.addObject(sketch7)
sketch7.AttachmentSupport = (doc.XZ_Plane, [""])
sketch7.MapMode = "FlatFace"
sketch7.AttachmentOffset = App.Placement(V(0, 0, 7), App.Rotation())
add_polygon(sketch7, [(24.5, 0), (15, -9.5), (5.5, 0), (2, 0), (2, -24), (54, -24), (54, 0), (50.5, 0), (41, -9.5), (31.5, 0)])  # lines 0-9
add_polygon(sketch7, [(5, -22.5), (15, -12.5), (25, -22.5)])  # lines 10-12
add_polygon(sketch7, [(51, -22.5), (31, -22.5), (41, -12.5)])  # lines 13-15
add_polygon(sketch7, [(3.5, -21), (3.5, -1), (13.5, -11)])  # lines 16-18
add_polygon(sketch7, [(26.5, -21), (16.5, -11), (26.5, -1)])  # lines 19-21
add_polygon(sketch7, [(39.5, -11), (29.5, -21), (29.5, -1)])  # lines 22-24
add_polygon(sketch7, [(52.5, -1), (52.5, -21), (42.5, -11)])  # lines 25-27
sketch7.addConstraint(Sketcher.Constraint("Horizontal", 2))
sketch7.addConstraint(Sketcher.Constraint("Vertical", 3))
sketch7.addConstraint(Sketcher.Constraint("Horizontal", 4))
sketch7.addConstraint(Sketcher.Constraint("Vertical", 5))
sketch7.addConstraint(Sketcher.Constraint("Horizontal", 6))
sketch7.addConstraint(Sketcher.Constraint("Horizontal", 9))
sketch7.addConstraint(Sketcher.Constraint("Horizontal", 12))
sketch7.addConstraint(Sketcher.Constraint("Horizontal", 13))
sketch7.addConstraint(Sketcher.Constraint("Vertical", 16))
sketch7.addConstraint(Sketcher.Constraint("Vertical", 21))
sketch7.addConstraint(Sketcher.Constraint("Vertical", 23))
sketch7.addConstraint(Sketcher.Constraint("Vertical", 25))
sketch7.addConstraint(Sketcher.Constraint("PointOnObject", 1, 2, -1))
sketch7.addConstraint(Sketcher.Constraint("PointOnObject", 5, 2, -1))
sketch7.addConstraint(Sketcher.Constraint("PointOnObject", 8, 2, -1))
sketch7.addConstraint(Sketcher.Constraint("Perpendicular", 0, 1))
sketch7.addConstraint(Sketcher.Constraint("Perpendicular", 1, 7))
sketch7.addConstraint(Sketcher.Constraint("Perpendicular", 7, 8))
sketch7.addConstraint(Sketcher.Constraint("Perpendicular", 8, 10))
sketch7.addConstraint(Sketcher.Constraint("Perpendicular", 10, 11))
sketch7.addConstraint(Sketcher.Constraint("Perpendicular", 11, 14))
sketch7.addConstraint(Sketcher.Constraint("Perpendicular", 14, 15))
sketch7.addConstraint(Sketcher.Constraint("Parallel", 15, 17))
sketch7.addConstraint(Sketcher.Constraint("Perpendicular", 17, 18))
sketch7.addConstraint(Sketcher.Constraint("Perpendicular", 18, 19))
sketch7.addConstraint(Sketcher.Constraint("Perpendicular", 19, 20))
sketch7.addConstraint(Sketcher.Constraint("Parallel", 20, 22))
sketch7.addConstraint(Sketcher.Constraint("Perpendicular", 22, 24))
sketch7.addConstraint(Sketcher.Constraint("Parallel", 24, 26))
sketch7.addConstraint(Sketcher.Constraint("Perpendicular", 26, 27))
sketch7.addConstraint(Sketcher.Constraint("Horizontal", 0, 2, 7, 2))
sketch7.addConstraint(Sketcher.Constraint("Horizontal", 12, 2, 13, 2))
sketch7.addConstraint(Sketcher.Constraint("Horizontal", 10, 2, 14, 2))
sketch7.addConstraint(Sketcher.Constraint("Horizontal", 17, 2, 19, 2))
sketch7.addConstraint(Sketcher.Constraint("Horizontal", 16, 2, 20, 2))
sketch7.addConstraint(Sketcher.Constraint("Horizontal", 18, 2, 21, 2))
sketch7.addConstraint(Sketcher.Constraint("Horizontal", 21, 2, 22, 2))
sketch7.addConstraint(Sketcher.Constraint("Horizontal", 20, 2, 23, 2))
sketch7.addConstraint(Sketcher.Constraint("Horizontal", 22, 2, 25, 2))
sketch7.addConstraint(Sketcher.Constraint("Horizontal", 24, 2, 26, 2))
sketch7.addConstraint(Sketcher.Constraint("Vertical", 0, 2, 10, 2))
sketch7.addConstraint(Sketcher.Constraint("Vertical", 7, 2, 14, 2))
sketch7.addConstraint(Sketcher.Constraint("Equal", 2, 6))
sketch7.addConstraint(Sketcher.Constraint("Equal", 13, 16))
sketch7.addConstraint(Sketcher.Constraint("DistanceX", 4, 1, 4, 2, 52.0))
sketch7.addConstraint(Sketcher.Constraint("DistanceX", 9, 2, 9, 1, 7.0))
sketch7.addConstraint(Sketcher.Constraint("DistanceX", 12, 2, 12, 1, 20.0))
sketch7.addConstraint(Sketcher.Constraint("DistanceY", 3, 2, 3, 1, 24.0))
sketch7.addConstraint(Sketcher.Constraint("DistanceX", 2, 2, 2, 1, 3.5))
sketch7.addConstraint(Sketcher.Constraint("DistanceX", -1, 1, 0, 2, 15.0))
sketch7.addConstraint(Sketcher.Constraint("DistanceY", 16, 2, -1, 1, 1.0))
sketch7.addConstraint(Sketcher.Constraint("DistanceY", 10, 2, 0, 2, 3.0))
sketch7.addConstraint(Sketcher.Constraint("DistanceX", 16, 2, 1, 2, 2.0))
sketch7.addConstraint(Sketcher.Constraint("DistanceX", 17, 2, 19, 2, 3.0))
sketch7.addConstraint(Sketcher.Constraint("DistanceX", 21, 2, 22, 2, 3.0))
sketch7.addConstraint(Sketcher.Constraint("DistanceX", 24, 2, 25, 2, 13.0))
sketch7.setExpression("Constraints[72]", "Params.sketch7_width")
sketch7.setExpression("Constraints[73]", "Params.sketch7_width2")
sketch7.setExpression("Constraints[74]", "Params.sketch7_width3")
sketch7.setExpression("Constraints[75]", "Params.sketch7_height")
sketch7.setExpression("Constraints[76]", "Params.sketch7_width4")
pad6 = doc.addObject("PartDesign::Pad", "Pad005")
body.addObject(pad6)
pad6.Profile = sketch7
pad6.setExpression("Length", "Params.pad6_length")
pad6.Reversed = True

# Sketch on XY plane
sketch8 = doc.addObject("Sketcher::SketchObject", "Sketch007")
body.addObject(sketch8)
sketch8.AttachmentSupport = (doc.XY_Plane, [""])
sketch8.MapMode = "FlatFace"
sketch8.AttachmentOffset = App.Placement(V(0, 0, -24), App.Rotation())
add_polygon(sketch8, [(15, 4.5), (5.5, -5), (2, -5), (2, 17), (5.5, 17), (15, 7.5), (24.5, 17), (31.5, 17), (41, 7.5), (50.5, 17), (54, 17), (54, -5), (50.5, -5), (41, 4.5), (31.5, -5), (24.5, -5)])  # lines 0-15
add_polygon(sketch8, [(52.5, 16), (42.5, 6), (52.5, -4)])  # lines 16-18
add_polygon(sketch8, [(29.5, 16), (29.5, -4), (39.5, 6)])  # lines 19-21
add_polygon(sketch8, [(26.5, -4), (26.5, 16), (16.5, 6)])  # lines 22-24
add_polygon(sketch8, [(13.5, 6), (3.5, 16), (3.5, -4)])  # lines 25-27
sketch8.addConstraint(Sketcher.Constraint("Horizontal", 1))
sketch8.addConstraint(Sketcher.Constraint("Vertical", 2))
sketch8.addConstraint(Sketcher.Constraint("Horizontal", 3))
sketch8.addConstraint(Sketcher.Constraint("Horizontal", 6))
sketch8.addConstraint(Sketcher.Constraint("Horizontal", 9))
sketch8.addConstraint(Sketcher.Constraint("Vertical", 10))
sketch8.addConstraint(Sketcher.Constraint("Horizontal", 11))
sketch8.addConstraint(Sketcher.Constraint("Horizontal", 14))
sketch8.addConstraint(Sketcher.Constraint("Vertical", 18))
sketch8.addConstraint(Sketcher.Constraint("Vertical", 19))
sketch8.addConstraint(Sketcher.Constraint("Vertical", 22))
sketch8.addConstraint(Sketcher.Constraint("Vertical", 26))
sketch8.addConstraint(Sketcher.Constraint("Perpendicular", 0, 4))
sketch8.addConstraint(Sketcher.Constraint("Perpendicular", 4, 5))
sketch8.addConstraint(Sketcher.Constraint("Perpendicular", 5, 7))
sketch8.addConstraint(Sketcher.Constraint("Perpendicular", 7, 8))
sketch8.addConstraint(Sketcher.Constraint("Perpendicular", 8, 12))
sketch8.addConstraint(Sketcher.Constraint("Perpendicular", 12, 13))
sketch8.addConstraint(Sketcher.Constraint("Perpendicular", 13, 15))
sketch8.addConstraint(Sketcher.Constraint("Perpendicular", 15, 16))
sketch8.addConstraint(Sketcher.Constraint("Perpendicular", 16, 17))
sketch8.addConstraint(Sketcher.Constraint("Perpendicular", 17, 20))
sketch8.addConstraint(Sketcher.Constraint("Perpendicular", 20, 21))
sketch8.addConstraint(Sketcher.Constraint("Perpendicular", 21, 23))
sketch8.addConstraint(Sketcher.Constraint("Perpendicular", 23, 24))
sketch8.addConstraint(Sketcher.Constraint("Parallel", 24, 25))
sketch8.addConstraint(Sketcher.Constraint("Perpendicular", 25, 27))
sketch8.addConstraint(Sketcher.Constraint("Horizontal", 3, 2, 5, 2))
sketch8.addConstraint(Sketcher.Constraint("Horizontal", 4, 2, 7, 2))
sketch8.addConstraint(Sketcher.Constraint("Horizontal", 6, 2, 8, 2))
sketch8.addConstraint(Sketcher.Constraint("Horizontal", 1, 2, 10, 2))
sketch8.addConstraint(Sketcher.Constraint("Horizontal", 11, 2, 13, 2))
sketch8.addConstraint(Sketcher.Constraint("Horizontal", 12, 2, 15, 2))
sketch8.addConstraint(Sketcher.Constraint("Horizontal", 17, 2, 19, 2))
sketch8.addConstraint(Sketcher.Constraint("Horizontal", 16, 2, 20, 2))
sketch8.addConstraint(Sketcher.Constraint("Horizontal", 18, 2, 21, 2))
sketch8.addConstraint(Sketcher.Constraint("Horizontal", 21, 2, 22, 2))
sketch8.addConstraint(Sketcher.Constraint("Horizontal", 20, 2, 23, 2))
sketch8.addConstraint(Sketcher.Constraint("Horizontal", 22, 2, 25, 2))
sketch8.addConstraint(Sketcher.Constraint("Horizontal", 24, 2, 26, 2))
sketch8.addConstraint(Sketcher.Constraint("Vertical", 0, 2, 3, 2))
sketch8.addConstraint(Sketcher.Constraint("Vertical", 8, 2, 11, 2))
sketch8.addConstraint(Sketcher.Constraint("Vertical", 7, 2, 12, 2))
sketch8.addConstraint(Sketcher.Constraint("Equal", 3, 9))
sketch8.addConstraint(Sketcher.Constraint("DistanceX", 6, 1, 6, 2, 7.0))
sketch8.addConstraint(Sketcher.Constraint("DistanceY", 2, 1, 2, 2, 22.0))
sketch8.addConstraint(Sketcher.Constraint("DistanceY", 18, 1, 18, 2, 20.0))
sketch8.addConstraint(Sketcher.Constraint("DistanceX", 1, 2, 1, 1, 3.5))
sketch8.addConstraint(Sketcher.Constraint("DistanceY", 0, 2, -1, 1, 5.0))
sketch8.addConstraint(Sketcher.Constraint("DistanceX", -1, 1, 1, 2, 2.0))
sketch8.addConstraint(Sketcher.Constraint("DistanceX", -1, 1, 4, 2, 15.0))
sketch8.addConstraint(Sketcher.Constraint("DistanceY", -1, 1, 16, 2, 6.0))
sketch8.addConstraint(Sketcher.Constraint("DistanceX", 16, 2, 8, 2, 8.0))
sketch8.addConstraint(Sketcher.Constraint("DistanceX", 19, 2, 13, 2, 2.0))
sketch8.addConstraint(Sketcher.Constraint("DistanceX", 5, 2, 22, 2, 2.0))
sketch8.addConstraint(Sketcher.Constraint("DistanceX", 25, 2, 3, 2, 2.0))
sketch8.setExpression("Constraints[72]", "Params.sketch8_width")
sketch8.setExpression("Constraints[73]", "Params.sketch8_height")
sketch8.setExpression("Constraints[74]", "Params.sketch8_height2")
sketch8.setExpression("Constraints[75]", "Params.sketch8_width2")
pad7 = doc.addObject("PartDesign::Pad", "Pad006")
body.addObject(pad7)
pad7.Profile = sketch8
pad7.setExpression("Length", "Params.pad7_length")

# Sketch on XY plane
sketch9 = doc.addObject("Sketcher::SketchObject", "Sketch008")
body.addObject(sketch9)
sketch9.AttachmentSupport = (doc.XY_Plane, [""])
sketch9.MapMode = "FlatFace"
sketch9.AttachmentOffset = App.Placement(V(0, 0, -24), App.Rotation())
add_polygon(sketch9, [(3.5, 0), (2, 0), (2, 12), (3.5, 12)])  # lines 0-3
sketch9.addConstraint(Sketcher.Constraint("Horizontal", 0))
sketch9.addConstraint(Sketcher.Constraint("Vertical", 1))
sketch9.addConstraint(Sketcher.Constraint("Horizontal", 2))
sketch9.addConstraint(Sketcher.Constraint("Vertical", 3))
sketch9.addConstraint(Sketcher.Constraint("PointOnObject", 0, 2, -1))
sketch9.addConstraint(Sketcher.Constraint("DistanceY", 1, 1, 1, 2, 12.0))
sketch9.addConstraint(Sketcher.Constraint("DistanceX", 0, 2, 0, 1, 1.5))
sketch9.addConstraint(Sketcher.Constraint("DistanceX", -1, 1, 0, 2, 2.0))
sketch9.setExpression("Constraints[9]", "Params.sketch9_height")
sketch9.setExpression("Constraints[10]", "Params.sketch9_width")
pocket2 = doc.addObject("PartDesign::Pocket", "Pocket001")
body.addObject(pocket2)
pocket2.Profile = sketch9
pocket2.setExpression("Length", "Params.pocket2_length")
pocket2.Reversed = True

# Sketch on YZ plane
sketch10 = doc.addObject("Sketcher::SketchObject", "Sketch009")
body.addObject(sketch10)
sketch10.AttachmentSupport = (doc.YZ_Plane, [""])
sketch10.MapMode = "FlatFace"
sketch10.AttachmentOffset = App.Placement(V(0, 0, 2), App.Rotation())
add_polygon(sketch10, [(-7, -30), (19, -30), (19, -24), (-7, -24)])  # lines 0-3
sketch10.addConstraint(Sketcher.Constraint("Horizontal", 0))
sketch10.addConstraint(Sketcher.Constraint("Vertical", 1))
sketch10.addConstraint(Sketcher.Constraint("Horizontal", 2))
sketch10.addConstraint(Sketcher.Constraint("Vertical", 3))
sketch10.addConstraint(Sketcher.Constraint("DistanceX", 0, 1, 0, 2, 26.0))
sketch10.addConstraint(Sketcher.Constraint("DistanceY", 1, 1, 1, 2, 6.0))
sketch10.addConstraint(Sketcher.Constraint("DistanceX", -1, 1, 0, 2, 19.0))
sketch10.addConstraint(Sketcher.Constraint("DistanceY", 0, 2, -1, 1, 30.0))
sketch10.setExpression("Constraints[8]", "Params.sketch10_width")
sketch10.setExpression("Constraints[9]", "Params.sketch10_height")
pocket3 = doc.addObject("PartDesign::Pocket", "Pocket002")
body.addObject(pocket3)
pocket3.Profile = sketch10
pocket3.setExpression("Length", "Params.pocket3_length")

doc.recompute()
